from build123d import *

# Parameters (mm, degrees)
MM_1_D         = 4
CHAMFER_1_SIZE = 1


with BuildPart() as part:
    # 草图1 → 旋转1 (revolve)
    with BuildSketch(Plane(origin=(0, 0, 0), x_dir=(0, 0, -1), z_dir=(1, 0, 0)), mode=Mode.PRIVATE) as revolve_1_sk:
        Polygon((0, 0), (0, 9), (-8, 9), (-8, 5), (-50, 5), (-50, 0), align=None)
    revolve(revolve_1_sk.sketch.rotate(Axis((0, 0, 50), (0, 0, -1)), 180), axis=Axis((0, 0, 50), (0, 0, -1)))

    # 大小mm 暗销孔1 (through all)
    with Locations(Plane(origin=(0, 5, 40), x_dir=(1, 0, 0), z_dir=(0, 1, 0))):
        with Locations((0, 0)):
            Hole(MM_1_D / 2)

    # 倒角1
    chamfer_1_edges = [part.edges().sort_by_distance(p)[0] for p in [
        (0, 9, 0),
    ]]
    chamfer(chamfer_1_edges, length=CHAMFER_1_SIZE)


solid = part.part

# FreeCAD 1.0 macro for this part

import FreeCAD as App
import Part
import Sketcher

V = App.Vector
Q = App.Units.Quantity


def edges_at(feature, points):
    """Names of the edges that pass closest to the given points."""
    edges = feature.Shape.Edges
    near = lambda p: min(range(len(edges)), key=lambda i: edges[i].distToShape(Part.Vertex(*p))[0])
    return sorted({f"Edge{near(p) + 1}" for p in points})

doc = App.newDocument("Part")
params = doc.addObject("Spreadsheet::Sheet", "Params")
for row, (alias, value) in enumerate([
    ("sketch1_width", "9 mm"),
    ("sketch1_width2", "4 mm"),
    ("sketch1_height", "8 mm"),
    ("sketch1_height2", "42 mm"),
    ("revolution_angle", "360 deg"),
    ("sketch2_diameter", "4 mm"),
    ("hole_diameter", "4 mm"),
    ("chamfer_size", "1 mm"),
], start=1):
    params.set(f"A{row}", alias)
    params.set(f"B{row}", "=" + value)
    params.setAlias(f"B{row}", alias)

body = doc.addObject("PartDesign::Body", "Body")

# Sketch on YZ plane
sketch1 = doc.addObject("Sketcher::SketchObject", "Sketch")
body.addObject(sketch1)
sketch1.AttachmentSupport = (doc.YZ_Plane, [""])
sketch1.MapMode = "FlatFace"
sketch1.addGeometry([
    Part.LineSegment(V(0, 0, 0), V(9, 0, 0)),  # 0
    Part.LineSegment(V(9, 0, 0), V(9, 8, 0)),  # 1
    Part.LineSegment(V(9, 8, 0), V(5, 8, 0)),  # 2
    Part.LineSegment(V(5, 8, 0), V(5, 50, 0)),  # 3
    Part.LineSegment(V(5, 50, 0), V(0, 50, 0)),  # 4
    Part.LineSegment(V(0, 50, 0), V(0, 0, 0)),  # 5
], False)
sketch1.addConstraint([
    Sketcher.Constraint("Coincident", 0, 2, 1, 1),
    Sketcher.Constraint("Coincident", 1, 2, 2, 1),
    Sketcher.Constraint("Coincident", 2, 2, 3, 1),
    Sketcher.Constraint("Coincident", 3, 2, 4, 1),
    Sketcher.Constraint("Coincident", 4, 2, 5, 1),
    Sketcher.Constraint("Coincident", 5, 2, 0, 1),
    Sketcher.Constraint("Horizontal", 0),
    Sketcher.Constraint("Vertical", 1),
    Sketcher.Constraint("Horizontal", 2),
    Sketcher.Constraint("Vertical", 3),
    Sketcher.Constraint("Horizontal", 4),
    Sketcher.Constraint("Vertical", 5),
    Sketcher.Constraint("Coincident", 5, 2, -1, 1),
    Sketcher.Constraint("DistanceX", 0, 1, 0, 2, Q("9 mm")),
    Sketcher.Constraint("DistanceX", 2, 2, 2, 1, Q("4 mm")),
    Sketcher.Constraint("DistanceY", 1, 1, 1, 2, Q("8 mm")),
    Sketcher.Constraint("DistanceY", 3, 1, 3, 2, Q("42 mm")),
])
sketch1.setExpression("Constraints[13]", "Params.sketch1_width")
sketch1.setExpression("Constraints[14]", "Params.sketch1_width2")
sketch1.setExpression("Constraints[15]", "Params.sketch1_height")
sketch1.setExpression("Constraints[16]", "Params.sketch1_height2")
revolution = doc.addObject("PartDesign::Revolution", "Revolution")
body.addObject(revolution)
revolution.Profile = sketch1
revolution.ReferenceAxis = (sketch1, ["V_Axis"])
revolution.setExpression("Angle", "Params.revolution_angle")

# Sketch on XZ plane
sketch2 = doc.addObject("Sketcher::SketchObject", "Sketch001")
body.addObject(sketch2)
sketch2.AttachmentSupport = (doc.XZ_Plane, [""])
sketch2.MapMode = "FlatFace"
sketch2.AttachmentOffset = App.Placement(V(0, 0, -5), App.Rotation())
sketch2.addGeometry(Part.Circle(V(0, 40, 0), V(0, 0, 1), 2), False)
sketch2.addConstraint([
    Sketcher.Constraint("PointOnObject", 0, 3, -2),
    Sketcher.Constraint("Diameter", 0, Q("4 mm")),
    Sketcher.Constraint("DistanceY", -1, 1, 0, 3, Q("40 mm")),
])
sketch2.setExpression("Constraints[1]", "Params.sketch2_diameter")
doc.recompute()
hole = doc.addObject("PartDesign::Hole", "Hole")
body.addObject(hole)
hole.Profile = sketch2
hole.ThreadType = "None"
hole.setExpression("Diameter", "Params.hole_diameter")
hole.DepthType = "ThroughAll"
hole.Reversed = True
doc.recompute()

chamfer = doc.addObject("PartDesign::Chamfer", "Chamfer")
body.addObject(chamfer)
chamfer.Base = (hole, edges_at(hole, [(0, 9, 0)]))
chamfer.setExpression("Size", "Params.chamfer_size")

doc.recompute()
